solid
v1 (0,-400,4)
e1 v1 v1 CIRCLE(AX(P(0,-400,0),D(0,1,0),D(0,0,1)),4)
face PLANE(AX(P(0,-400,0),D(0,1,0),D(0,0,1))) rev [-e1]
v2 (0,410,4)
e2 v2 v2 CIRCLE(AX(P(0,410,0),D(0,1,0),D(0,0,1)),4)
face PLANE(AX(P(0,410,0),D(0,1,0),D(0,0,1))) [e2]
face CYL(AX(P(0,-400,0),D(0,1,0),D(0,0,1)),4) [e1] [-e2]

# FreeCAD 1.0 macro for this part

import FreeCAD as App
import Part
import Sketcher
from FreeCAD import Vector
Q = App.Units.Quantity

doc = App.newDocument("Part")
body = doc.addObject("PartDesign::Body", "Body")

# Sketch on XZ plane
sketch1 = body.newObject("Sketcher::SketchObject", "Sketch")
sketch1.AttachmentSupport = (doc.getObject("XZ_Plane"), [""])
sketch1.MapMode = "FlatFace"
sketch1.addGeometry(Part.Circle(Vector(0, 0, 0), Vector(0, 0, 1), 4), False)
sketch1.addConstraint(Sketcher.Constraint("Coincident", 0, 3, -1, 1))
sketch1.addConstraint(Sketcher.Constraint("Diameter", 0, Q("8 mm")))
pad1 = body.newObject("PartDesign::Pad", "Pad")
pad1.Profile = sketch1
pad1.Type = "TwoLengths"
pad1.Length = 410
pad1.Length2 = 400
pad1.Reversed = True

doc.recompute()
